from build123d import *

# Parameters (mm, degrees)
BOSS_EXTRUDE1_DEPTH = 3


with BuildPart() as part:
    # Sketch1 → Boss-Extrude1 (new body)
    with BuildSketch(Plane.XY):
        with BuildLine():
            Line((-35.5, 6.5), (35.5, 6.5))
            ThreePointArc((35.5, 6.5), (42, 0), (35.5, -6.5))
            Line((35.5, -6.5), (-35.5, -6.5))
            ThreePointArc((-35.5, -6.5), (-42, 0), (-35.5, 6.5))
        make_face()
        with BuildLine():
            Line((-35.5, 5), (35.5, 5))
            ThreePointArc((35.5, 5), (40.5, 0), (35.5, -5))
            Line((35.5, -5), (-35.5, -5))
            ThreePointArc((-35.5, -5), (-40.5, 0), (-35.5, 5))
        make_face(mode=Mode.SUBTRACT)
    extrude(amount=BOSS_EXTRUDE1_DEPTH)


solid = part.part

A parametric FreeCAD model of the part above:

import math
import FreeCAD as App
import Part
import Sketcher
from FreeCAD import Vector

doc = App.newDocument("Part")
body = doc.addObject("PartDesign::Body", "Body")

# Sketch on XY plane
sketch1 = body.newObject("Sketcher::SketchObject", "Sketch")
sketch1.AttachmentSupport = (doc.getObject("XY_Plane"), [""])
sketch1.MapMode = "FlatFace"
sketch1.addGeometry(Part.LineSegment(Vector(36, 6, 0), Vector(-36, 6, 0)), False)
sketch1.addGeometry(Part.ArcOfCircle(Part.Circle(Vector(-36, 0, 0), Vector(0, 0, 1), 6), math.radians(90), math.radians(270)), False)
sketch1.addGeometry(Part.LineSegment(Vector(-36, -6, 0), Vector(36, -6, 0)), False)
sketch1.addGeometry(Part.ArcOfCircle(Part.Circle(Vector(36, 0, 0), Vector(0, 0, 1), 6), math.radians(-90), math.radians(90)), False)
sketch1.addGeometry(Part.LineSegment(Vector(-36, 5, 0), Vector(36, 5, 0)), False)
sketch1.addGeometry(Part.ArcOfCircle(Part.Circle(Vector(36, 0, 0), Vector(0, 0, 1), 5), math.radians(-90), math.radians(90)), False)
sketch1.addGeometry(Part.LineSegment(Vector(36, -5, 0), Vector(-36, -5, 0)), False)
sketch1.addGeometry(Part.ArcOfCircle(Part.Circle(Vector(-36, 0, 0), Vector(0, 0, 1), 5), math.radians(90), math.radians(270)), False)
sketch1.addConstraint(Sketcher.Constraint("Tangent", 0, 2, 1, 1))
sketch1.addConstraint(Sketcher.Constraint("Tangent", 1, 2, 2, 1))
sketch1.addConstraint(Sketcher.Constraint("Tangent", 2, 2, 3, 1))
sketch1.addConstraint(Sketcher.Constraint("Tangent", 3, 2, 0, 1))
sketch1.addConstraint(Sketcher.Constraint("Tangent", 4, 2, 5, 2))
sketch1.addConstraint(Sketcher.Constraint("Tangent", 5, 1, 6, 1))
sketch1.addConstraint(Sketcher.Constraint("Tangent", 6, 2, 7, 2))
sketch1.addConstraint(Sketcher.Constraint("Tangent", 7, 1, 4, 1))
sketch1.addConstraint(Sketcher.Constraint("Horizontal", 0))
sketch1.addConstraint(Sketcher.Constraint("Horizontal", 2))
sketch1.addConstraint(Sketcher.Constraint("Horizontal", 4))
sketch1.addConstraint(Sketcher.Constraint("Horizontal", 6))
sketch1.addConstraint(Sketcher.Constraint("Coincident", 5, 3, 3, 3))
sketch1.addConstraint(Sketcher.Constraint("Symmetric", 1, 3, 3, 3, -1, 1))
sketch1.addConstraint(Sketcher.Constraint("Vertical", 7, 3, 0, 2))
sketch1.addConstraint(Sketcher.Constraint("Radius", 5, 5.0))
sketch1.addConstraint(Sketcher.Constraint("Radius", 1, 6.5))
sketch1.addConstraint(Sketcher.Constraint("DistanceX", 0, 2, 0, 1, 71.0))
pad1 = body.newObject("PartDesign::Pad", "Pad")
pad1.Profile = sketch1
pad1.Length = 3

doc.recompute()
